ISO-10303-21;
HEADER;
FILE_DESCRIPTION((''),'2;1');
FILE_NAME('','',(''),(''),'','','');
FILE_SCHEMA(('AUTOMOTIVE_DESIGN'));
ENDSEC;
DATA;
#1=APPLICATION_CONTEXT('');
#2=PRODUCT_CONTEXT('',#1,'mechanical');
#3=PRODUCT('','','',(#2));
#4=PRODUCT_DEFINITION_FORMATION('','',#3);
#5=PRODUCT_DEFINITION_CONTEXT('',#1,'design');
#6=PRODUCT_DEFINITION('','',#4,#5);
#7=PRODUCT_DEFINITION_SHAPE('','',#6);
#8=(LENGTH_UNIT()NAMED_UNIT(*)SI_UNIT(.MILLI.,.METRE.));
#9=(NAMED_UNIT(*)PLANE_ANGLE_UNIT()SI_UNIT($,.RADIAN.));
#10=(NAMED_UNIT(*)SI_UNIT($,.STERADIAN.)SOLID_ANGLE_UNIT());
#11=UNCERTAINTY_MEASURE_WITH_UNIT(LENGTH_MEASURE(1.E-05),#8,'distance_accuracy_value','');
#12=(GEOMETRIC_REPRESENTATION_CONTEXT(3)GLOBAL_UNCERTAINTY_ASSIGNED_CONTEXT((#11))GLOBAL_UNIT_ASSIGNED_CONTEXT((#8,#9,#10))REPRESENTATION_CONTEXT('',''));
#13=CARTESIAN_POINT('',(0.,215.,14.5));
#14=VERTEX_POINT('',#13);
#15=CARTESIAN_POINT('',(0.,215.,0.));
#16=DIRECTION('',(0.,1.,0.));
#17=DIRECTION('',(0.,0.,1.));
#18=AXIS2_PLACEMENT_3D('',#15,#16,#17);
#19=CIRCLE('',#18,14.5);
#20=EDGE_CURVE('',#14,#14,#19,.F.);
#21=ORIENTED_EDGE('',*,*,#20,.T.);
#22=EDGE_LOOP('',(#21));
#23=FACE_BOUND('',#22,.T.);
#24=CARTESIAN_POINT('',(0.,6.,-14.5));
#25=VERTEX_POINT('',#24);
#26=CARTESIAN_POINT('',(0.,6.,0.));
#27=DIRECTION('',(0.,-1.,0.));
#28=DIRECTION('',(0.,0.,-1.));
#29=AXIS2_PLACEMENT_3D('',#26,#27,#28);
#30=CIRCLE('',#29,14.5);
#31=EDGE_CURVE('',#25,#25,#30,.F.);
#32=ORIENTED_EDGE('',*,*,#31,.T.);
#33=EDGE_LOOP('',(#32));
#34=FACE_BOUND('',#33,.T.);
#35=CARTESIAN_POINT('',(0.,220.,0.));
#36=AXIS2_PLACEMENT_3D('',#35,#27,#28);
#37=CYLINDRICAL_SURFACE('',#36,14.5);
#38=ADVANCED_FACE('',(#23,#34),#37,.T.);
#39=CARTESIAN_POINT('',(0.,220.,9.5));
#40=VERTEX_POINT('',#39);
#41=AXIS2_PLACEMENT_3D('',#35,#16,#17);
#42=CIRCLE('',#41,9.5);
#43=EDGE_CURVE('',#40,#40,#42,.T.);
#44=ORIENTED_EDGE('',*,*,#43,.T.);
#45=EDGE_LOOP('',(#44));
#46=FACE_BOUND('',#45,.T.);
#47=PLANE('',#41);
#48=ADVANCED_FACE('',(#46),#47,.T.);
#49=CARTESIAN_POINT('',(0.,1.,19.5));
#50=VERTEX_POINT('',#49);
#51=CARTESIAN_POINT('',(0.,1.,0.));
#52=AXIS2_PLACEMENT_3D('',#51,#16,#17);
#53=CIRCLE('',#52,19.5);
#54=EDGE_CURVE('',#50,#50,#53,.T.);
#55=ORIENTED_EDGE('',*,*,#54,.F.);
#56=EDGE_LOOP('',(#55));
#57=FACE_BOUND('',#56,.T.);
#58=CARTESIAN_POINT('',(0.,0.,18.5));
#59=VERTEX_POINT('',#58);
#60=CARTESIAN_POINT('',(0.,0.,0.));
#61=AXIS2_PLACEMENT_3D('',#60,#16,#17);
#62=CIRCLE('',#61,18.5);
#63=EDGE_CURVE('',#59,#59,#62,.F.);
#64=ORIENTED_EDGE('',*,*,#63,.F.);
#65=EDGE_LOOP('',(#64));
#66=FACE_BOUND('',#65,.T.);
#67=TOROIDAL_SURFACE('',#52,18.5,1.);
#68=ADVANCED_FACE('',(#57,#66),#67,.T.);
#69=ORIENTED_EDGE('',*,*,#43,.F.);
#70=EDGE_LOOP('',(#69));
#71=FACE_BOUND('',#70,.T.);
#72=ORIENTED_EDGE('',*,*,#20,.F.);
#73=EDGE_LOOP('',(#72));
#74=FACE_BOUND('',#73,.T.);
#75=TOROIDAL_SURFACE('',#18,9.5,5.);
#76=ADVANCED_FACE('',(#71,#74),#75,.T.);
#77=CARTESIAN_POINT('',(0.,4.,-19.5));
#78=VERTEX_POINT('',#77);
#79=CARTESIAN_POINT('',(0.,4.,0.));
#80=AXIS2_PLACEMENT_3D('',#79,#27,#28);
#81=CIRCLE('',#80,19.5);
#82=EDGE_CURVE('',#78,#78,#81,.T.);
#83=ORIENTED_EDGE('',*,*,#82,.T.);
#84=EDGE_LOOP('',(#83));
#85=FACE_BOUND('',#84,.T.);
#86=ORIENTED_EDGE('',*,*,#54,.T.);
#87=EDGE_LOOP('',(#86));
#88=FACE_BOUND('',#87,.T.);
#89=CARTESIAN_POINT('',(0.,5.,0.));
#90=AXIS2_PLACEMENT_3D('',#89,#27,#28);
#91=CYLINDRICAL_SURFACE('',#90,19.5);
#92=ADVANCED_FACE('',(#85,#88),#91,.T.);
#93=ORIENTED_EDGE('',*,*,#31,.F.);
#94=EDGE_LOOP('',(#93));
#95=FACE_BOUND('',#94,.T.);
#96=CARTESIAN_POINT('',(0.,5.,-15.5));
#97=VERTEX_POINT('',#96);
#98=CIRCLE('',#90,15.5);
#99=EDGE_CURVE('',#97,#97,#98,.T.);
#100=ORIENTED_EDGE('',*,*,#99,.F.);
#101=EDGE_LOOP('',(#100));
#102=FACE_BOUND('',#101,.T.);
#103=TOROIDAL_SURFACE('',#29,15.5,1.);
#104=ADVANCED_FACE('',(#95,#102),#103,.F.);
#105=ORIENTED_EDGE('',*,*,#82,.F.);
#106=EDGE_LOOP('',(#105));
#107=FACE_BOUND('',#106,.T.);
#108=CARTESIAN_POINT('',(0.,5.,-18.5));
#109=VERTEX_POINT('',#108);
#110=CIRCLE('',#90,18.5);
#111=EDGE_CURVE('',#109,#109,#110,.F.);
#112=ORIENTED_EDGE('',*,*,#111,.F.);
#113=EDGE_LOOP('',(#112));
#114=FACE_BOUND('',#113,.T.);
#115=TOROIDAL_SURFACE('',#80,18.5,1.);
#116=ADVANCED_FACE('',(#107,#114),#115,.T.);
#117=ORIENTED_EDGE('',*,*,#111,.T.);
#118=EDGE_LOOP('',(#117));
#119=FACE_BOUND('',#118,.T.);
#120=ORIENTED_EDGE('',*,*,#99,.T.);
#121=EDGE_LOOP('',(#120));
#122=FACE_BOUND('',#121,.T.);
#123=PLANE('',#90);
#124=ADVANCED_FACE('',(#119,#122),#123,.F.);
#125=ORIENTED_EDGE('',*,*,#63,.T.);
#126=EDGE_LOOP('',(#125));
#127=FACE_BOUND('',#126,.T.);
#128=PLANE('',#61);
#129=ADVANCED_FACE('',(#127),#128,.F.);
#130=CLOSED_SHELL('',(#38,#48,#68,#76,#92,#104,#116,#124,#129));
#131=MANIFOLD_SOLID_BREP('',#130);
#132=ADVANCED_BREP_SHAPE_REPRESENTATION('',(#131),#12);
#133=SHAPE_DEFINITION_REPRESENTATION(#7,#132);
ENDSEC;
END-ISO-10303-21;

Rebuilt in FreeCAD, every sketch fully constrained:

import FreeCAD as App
import Part
import Sketcher

V = App.Vector
Q = App.Units.Quantity


def edges_at(feature, points):
    """Names of the edges that pass closest to the given points."""
    edges = feature.Shape.Edges
    near = lambda p: min(range(len(edges)), key=lambda i: edges[i].distToShape(Part.Vertex(*p))[0])
    return sorted({f"Edge{near(p) + 1}" for p in points})

doc = App.newDocument("Part")
body = doc.addObject("PartDesign::Body", "Body")

sketch1 = body.newObject("Sketcher::SketchObject", "Sketch")
sketch1.AttachmentSupport = (doc.getObject("XZ_Plane"), [""])
sketch1.MapMode = "FlatFace"
sketch1.addGeometry(Part.Circle(V(0, 0, 0), V(0, 0, 1), 14), False)
sketch1.addConstraint([
    Sketcher.Constraint("Coincident", 0, 3, -1, 1),
    Sketcher.Constraint("Diameter", 0, Q("29 mm")),
])
pad1 = body.newObject("PartDesign::Pad", "Pad")
pad1.Profile = sketch1
pad1.Length = 220
pad1.Reversed = True
doc.recompute()

fillet = body.newObject("PartDesign::Fillet", "Fillet")
fillet.Base = (pad1, edges_at(pad1, [(0, 220, -14.5)]))
fillet.Radius = 5

sketch2 = body.newObject("Sketcher::SketchObject", "Sketch001")
sketch2.AttachmentSupport = (doc.getObject("XZ_Plane"), [""])
sketch2.MapMode = "FlatFace"
sketch2.addGeometry(Part.Circle(V(0, 0, 0), V(0, 0, 1), 20), False)
sketch2.addConstraint([
    Sketcher.Constraint("Coincident", 0, 3, -1, 1),
    Sketcher.Constraint("Diameter", 0, Q("39 mm")),
])
pad2 = body.newObject("PartDesign::Pad", "Pad001")
pad2.Profile = sketch2
pad2.Length = 5
pad2.Reversed = True
doc.recompute()

fillet2 = body.newObject("PartDesign::Fillet", "Fillet001")
fillet2.Base = (pad2, edges_at(pad2, [(0, 5, 19.5), (0, 0, 19.5), (0, 5, -14.5)]))
fillet2.Radius = 1

doc.recompute()
